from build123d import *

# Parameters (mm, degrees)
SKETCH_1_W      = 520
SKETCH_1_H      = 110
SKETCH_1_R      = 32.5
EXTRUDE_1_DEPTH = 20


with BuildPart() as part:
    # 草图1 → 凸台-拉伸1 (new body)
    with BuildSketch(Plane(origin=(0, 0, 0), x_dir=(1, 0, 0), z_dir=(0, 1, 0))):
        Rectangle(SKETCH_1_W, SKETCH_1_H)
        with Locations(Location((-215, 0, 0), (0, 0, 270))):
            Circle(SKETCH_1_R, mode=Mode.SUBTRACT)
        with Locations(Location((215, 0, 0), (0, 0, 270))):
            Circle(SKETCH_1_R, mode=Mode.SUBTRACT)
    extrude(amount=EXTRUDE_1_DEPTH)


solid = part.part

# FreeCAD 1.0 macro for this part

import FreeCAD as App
import Part
import Sketcher
from FreeCAD import Vector
Q = App.Units.Quantity

doc = App.newDocument("Part")
body = doc.addObject("PartDesign::Body", "Body")

sketch1 = doc.addObject("Sketcher::SketchObject", "Sketch")
body.addObject(sketch1)
sketch1.AttachmentSupport = (doc.XZ_Plane, [""])
sketch1.MapMode = "FlatFace"
sketch1.addGeometry([
    Part.LineSegment(Vector(-260, -55, 0), Vector(-260, 55, 0)),
    Part.LineSegment(Vector(-260, 55, 0), Vector(260, 55, 0)),
    Part.LineSegment(Vector(260, 55, 0), Vector(260, -55, 0)),
    Part.LineSegment(Vector(260, -55, 0), Vector(-260, -55, 0)),
    Part.Circle(Vector(-215, 0, 0), Vector(0, 0, 1), 32),
    Part.Circle(Vector(215, 0, 0), Vector(0, 0, 1), 32),
], False)
sketch1.addConstraint([
    Sketcher.Constraint("Coincident", 0, 2, 1, 1),
    Sketcher.Constraint("Coincident", 1, 2, 2, 1),
    Sketcher.Constraint("Coincident", 2, 2, 3, 1),
    Sketcher.Constraint("Coincident", 3, 2, 0, 1),
    Sketcher.Constraint("Vertical", 0),
    Sketcher.Constraint("Horizontal", 1),
    Sketcher.Constraint("Vertical", 2),
    Sketcher.Constraint("Horizontal", 3),
    Sketcher.Constraint("Equal", 4, 5),
    Sketcher.Constraint("Symmetric", 4, 3, 5, 3, -1, 1),
    Sketcher.Constraint("Symmetric", 0, 2, 2, 2, -1, 1),
    Sketcher.Constraint("PointOnObject", 4, 3, -1),
    Sketcher.Constraint("Diameter", 4, Q("65 mm")),
    Sketcher.Constraint("DistanceX", 1, 1, 1, 2, Q("520 mm")),
    Sketcher.Constraint("DistanceY", 0, 1, 0, 2, Q("110 mm")),
    Sketcher.Constraint("DistanceX", 4, 3, -1, 1, Q("215 mm")),
])
pad1 = doc.addObject("PartDesign::Pad", "Pad")
body.addObject(pad1)
pad1.Profile = sketch1
pad1.Length = 20
pad1.Reversed = True

doc.recompute()
